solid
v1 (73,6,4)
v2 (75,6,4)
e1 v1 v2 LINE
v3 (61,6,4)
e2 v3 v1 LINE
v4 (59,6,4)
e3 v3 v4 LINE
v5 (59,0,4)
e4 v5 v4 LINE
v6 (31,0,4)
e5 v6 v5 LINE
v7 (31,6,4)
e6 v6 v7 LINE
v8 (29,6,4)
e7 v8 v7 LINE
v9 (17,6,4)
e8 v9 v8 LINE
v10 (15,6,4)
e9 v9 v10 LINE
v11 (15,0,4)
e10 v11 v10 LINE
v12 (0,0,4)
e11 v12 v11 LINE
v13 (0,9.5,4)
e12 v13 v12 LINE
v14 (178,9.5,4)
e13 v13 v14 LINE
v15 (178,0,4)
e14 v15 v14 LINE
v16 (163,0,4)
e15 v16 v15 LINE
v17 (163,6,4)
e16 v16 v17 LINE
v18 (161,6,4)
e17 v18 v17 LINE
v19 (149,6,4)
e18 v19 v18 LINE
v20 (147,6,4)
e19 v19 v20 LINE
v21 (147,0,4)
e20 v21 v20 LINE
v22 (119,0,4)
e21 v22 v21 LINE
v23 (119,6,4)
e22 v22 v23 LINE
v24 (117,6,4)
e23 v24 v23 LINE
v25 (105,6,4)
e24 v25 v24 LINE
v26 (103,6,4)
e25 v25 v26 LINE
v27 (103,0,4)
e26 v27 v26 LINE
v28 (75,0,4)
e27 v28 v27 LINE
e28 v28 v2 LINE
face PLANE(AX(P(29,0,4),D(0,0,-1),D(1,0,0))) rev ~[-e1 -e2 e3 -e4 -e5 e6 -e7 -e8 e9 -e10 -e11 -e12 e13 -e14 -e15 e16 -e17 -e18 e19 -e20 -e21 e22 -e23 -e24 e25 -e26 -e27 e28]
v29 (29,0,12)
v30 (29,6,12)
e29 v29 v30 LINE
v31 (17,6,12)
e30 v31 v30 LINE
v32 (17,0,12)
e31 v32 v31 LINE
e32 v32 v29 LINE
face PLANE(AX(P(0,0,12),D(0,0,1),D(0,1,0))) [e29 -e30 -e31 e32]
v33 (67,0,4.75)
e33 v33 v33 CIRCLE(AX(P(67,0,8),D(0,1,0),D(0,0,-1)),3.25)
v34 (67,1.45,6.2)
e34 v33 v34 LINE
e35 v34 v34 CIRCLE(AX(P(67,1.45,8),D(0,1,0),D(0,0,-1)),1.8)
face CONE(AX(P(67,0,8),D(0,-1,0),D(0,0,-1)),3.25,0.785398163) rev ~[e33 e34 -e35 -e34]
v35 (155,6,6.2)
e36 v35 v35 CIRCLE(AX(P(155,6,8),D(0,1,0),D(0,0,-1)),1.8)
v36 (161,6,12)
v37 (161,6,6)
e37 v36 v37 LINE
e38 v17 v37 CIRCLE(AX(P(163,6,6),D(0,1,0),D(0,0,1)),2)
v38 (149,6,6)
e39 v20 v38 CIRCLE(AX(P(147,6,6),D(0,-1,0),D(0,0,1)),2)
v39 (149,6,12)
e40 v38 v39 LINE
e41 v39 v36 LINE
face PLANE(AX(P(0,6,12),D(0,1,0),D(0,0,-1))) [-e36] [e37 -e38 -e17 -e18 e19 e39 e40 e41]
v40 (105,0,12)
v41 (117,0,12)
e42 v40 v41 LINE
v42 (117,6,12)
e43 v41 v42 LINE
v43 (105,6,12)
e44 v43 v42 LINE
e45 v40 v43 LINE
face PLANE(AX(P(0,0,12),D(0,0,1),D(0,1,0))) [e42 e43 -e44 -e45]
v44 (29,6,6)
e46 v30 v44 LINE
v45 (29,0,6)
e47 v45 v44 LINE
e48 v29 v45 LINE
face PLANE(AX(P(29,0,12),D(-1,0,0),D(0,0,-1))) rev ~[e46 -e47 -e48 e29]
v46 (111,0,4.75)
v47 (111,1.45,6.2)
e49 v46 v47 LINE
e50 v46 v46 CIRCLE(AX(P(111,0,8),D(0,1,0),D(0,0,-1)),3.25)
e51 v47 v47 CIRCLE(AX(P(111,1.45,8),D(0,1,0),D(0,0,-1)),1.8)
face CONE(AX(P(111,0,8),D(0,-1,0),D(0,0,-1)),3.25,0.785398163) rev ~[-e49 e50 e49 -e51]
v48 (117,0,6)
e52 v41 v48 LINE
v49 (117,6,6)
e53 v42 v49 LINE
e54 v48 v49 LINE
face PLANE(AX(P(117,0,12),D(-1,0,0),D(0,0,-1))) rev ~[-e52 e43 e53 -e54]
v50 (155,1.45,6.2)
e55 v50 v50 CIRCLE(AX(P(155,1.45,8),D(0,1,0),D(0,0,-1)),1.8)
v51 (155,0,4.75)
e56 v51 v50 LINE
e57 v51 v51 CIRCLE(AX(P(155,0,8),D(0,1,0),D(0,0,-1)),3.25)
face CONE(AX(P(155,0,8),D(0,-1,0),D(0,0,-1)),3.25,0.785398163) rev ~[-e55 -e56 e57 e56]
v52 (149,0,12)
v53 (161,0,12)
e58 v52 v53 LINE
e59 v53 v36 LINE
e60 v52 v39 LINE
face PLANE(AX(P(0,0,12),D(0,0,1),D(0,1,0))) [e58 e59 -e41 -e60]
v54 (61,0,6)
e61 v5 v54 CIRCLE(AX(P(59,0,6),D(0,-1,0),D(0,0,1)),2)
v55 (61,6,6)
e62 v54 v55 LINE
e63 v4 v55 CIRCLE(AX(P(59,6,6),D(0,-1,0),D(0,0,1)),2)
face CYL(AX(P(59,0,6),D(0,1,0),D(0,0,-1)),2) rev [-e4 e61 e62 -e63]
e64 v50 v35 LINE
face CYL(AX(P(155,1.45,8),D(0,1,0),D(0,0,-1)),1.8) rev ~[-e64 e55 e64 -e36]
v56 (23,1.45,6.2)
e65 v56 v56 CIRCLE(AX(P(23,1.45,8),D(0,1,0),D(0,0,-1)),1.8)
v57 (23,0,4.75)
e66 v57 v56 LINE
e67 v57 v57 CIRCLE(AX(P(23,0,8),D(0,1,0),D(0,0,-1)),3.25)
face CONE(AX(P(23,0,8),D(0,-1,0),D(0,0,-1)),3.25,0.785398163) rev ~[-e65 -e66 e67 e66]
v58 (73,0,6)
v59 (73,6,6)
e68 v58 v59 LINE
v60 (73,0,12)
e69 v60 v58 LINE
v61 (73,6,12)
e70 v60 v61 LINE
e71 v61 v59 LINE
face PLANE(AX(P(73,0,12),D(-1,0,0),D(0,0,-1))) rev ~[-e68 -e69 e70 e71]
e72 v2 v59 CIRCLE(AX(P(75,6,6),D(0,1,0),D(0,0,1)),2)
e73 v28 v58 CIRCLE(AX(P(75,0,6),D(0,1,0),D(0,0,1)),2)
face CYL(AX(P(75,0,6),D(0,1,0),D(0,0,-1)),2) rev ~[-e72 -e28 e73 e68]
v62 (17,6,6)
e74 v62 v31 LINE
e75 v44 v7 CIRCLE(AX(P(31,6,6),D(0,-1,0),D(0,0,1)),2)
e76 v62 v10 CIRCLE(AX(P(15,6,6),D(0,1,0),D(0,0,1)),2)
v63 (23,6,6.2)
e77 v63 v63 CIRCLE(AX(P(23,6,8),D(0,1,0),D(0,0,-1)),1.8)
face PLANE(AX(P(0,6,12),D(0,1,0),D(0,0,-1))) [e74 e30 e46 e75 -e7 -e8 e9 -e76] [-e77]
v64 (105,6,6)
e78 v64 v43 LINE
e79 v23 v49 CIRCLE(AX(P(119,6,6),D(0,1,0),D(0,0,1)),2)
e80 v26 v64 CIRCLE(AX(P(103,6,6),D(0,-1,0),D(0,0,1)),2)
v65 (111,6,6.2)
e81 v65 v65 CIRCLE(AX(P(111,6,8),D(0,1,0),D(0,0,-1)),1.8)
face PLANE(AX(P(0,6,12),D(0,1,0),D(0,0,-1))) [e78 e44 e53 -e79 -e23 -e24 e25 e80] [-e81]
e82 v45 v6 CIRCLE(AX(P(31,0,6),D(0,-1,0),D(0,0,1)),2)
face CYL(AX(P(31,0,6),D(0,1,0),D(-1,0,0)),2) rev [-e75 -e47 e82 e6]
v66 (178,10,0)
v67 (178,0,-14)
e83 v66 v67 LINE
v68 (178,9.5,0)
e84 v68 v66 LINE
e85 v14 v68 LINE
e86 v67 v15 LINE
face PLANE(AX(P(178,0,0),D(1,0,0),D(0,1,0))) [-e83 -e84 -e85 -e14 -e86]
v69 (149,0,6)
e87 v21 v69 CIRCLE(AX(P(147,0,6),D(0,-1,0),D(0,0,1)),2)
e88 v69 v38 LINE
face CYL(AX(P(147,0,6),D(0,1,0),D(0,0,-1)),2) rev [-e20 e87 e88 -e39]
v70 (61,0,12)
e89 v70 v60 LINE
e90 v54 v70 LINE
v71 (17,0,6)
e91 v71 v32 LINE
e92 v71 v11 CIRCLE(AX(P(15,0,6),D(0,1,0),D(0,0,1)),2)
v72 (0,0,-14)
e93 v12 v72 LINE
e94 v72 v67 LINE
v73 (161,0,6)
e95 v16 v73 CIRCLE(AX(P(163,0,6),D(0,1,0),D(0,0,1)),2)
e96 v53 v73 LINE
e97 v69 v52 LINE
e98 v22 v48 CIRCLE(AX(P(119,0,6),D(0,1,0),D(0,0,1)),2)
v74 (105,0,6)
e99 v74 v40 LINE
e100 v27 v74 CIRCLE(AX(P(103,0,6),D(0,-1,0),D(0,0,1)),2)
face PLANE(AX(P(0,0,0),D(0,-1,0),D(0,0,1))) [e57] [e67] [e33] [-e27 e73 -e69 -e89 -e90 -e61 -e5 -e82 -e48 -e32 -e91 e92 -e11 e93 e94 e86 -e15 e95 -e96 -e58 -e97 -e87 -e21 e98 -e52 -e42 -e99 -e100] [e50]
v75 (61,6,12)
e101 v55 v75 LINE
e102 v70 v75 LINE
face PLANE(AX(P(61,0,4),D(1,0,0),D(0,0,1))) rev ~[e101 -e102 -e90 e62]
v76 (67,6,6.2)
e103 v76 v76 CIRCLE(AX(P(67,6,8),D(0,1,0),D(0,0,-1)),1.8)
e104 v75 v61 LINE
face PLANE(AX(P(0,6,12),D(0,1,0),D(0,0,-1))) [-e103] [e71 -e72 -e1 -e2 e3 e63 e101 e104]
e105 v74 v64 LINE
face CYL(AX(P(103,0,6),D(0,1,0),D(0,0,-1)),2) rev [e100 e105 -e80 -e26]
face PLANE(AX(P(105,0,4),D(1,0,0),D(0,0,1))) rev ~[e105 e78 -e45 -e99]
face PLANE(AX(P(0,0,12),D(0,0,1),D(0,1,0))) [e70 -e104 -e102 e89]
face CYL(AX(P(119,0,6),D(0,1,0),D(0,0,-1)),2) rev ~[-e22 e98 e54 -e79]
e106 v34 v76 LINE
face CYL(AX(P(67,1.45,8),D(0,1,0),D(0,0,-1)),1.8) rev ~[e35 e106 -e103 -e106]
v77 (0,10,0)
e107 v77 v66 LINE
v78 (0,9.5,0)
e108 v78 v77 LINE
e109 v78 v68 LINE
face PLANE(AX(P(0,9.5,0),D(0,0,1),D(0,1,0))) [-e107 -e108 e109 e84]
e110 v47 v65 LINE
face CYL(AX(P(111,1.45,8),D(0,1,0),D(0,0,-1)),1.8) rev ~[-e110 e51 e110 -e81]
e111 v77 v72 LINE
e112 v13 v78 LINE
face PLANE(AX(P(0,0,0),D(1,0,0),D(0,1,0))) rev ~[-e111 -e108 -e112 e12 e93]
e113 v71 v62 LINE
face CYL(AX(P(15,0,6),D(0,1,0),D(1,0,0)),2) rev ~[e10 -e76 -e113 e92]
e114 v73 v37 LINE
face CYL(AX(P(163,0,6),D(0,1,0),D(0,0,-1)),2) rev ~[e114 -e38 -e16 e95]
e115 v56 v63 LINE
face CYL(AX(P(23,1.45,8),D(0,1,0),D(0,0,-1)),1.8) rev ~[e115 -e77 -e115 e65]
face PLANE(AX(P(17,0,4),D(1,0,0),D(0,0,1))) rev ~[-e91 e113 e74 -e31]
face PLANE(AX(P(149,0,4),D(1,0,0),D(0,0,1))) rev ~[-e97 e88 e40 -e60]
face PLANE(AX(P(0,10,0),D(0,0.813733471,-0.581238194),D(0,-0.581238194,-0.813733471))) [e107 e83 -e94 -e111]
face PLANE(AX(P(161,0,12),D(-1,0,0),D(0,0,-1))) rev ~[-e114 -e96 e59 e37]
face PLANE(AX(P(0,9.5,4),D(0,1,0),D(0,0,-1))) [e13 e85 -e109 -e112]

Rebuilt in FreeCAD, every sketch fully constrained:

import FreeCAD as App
import Part
import Sketcher
Q = App.Units.Quantity


def edges_at(feature, points):
    """Names of the edges that pass closest to the given points."""
    edges = feature.Shape.Edges
    near = lambda p: min(range(len(edges)), key=lambda i: edges[i].distToShape(Part.Vertex(*p))[0])
    return sorted({f"Edge{near(p) + 1}" for p in points})

doc = App.newDocument("Part")
body = doc.addObject("PartDesign::Body", "Body")

# Sketch on YZ plane
sketch1 = body.newObject("Sketcher::SketchObject", "Sketch")
sketch1.AttachmentSupport = (doc.getObject("YZ_Plane"), [""])
sketch1.MapMode = "FlatFace"
sketch1.addGeometry([
    Part.LineSegment(App.Vector(0, 12, 0), App.Vector(0, -14, 0)),  # 0
    Part.LineSegment(App.Vector(0, -14, 0), App.Vector(10, 0, 0)),  # 1
    Part.LineSegment(App.Vector(10, 0, 0), App.Vector(9.5, 0, 0)),  # 2
    Part.LineSegment(App.Vector(9.5, 0, 0), App.Vector(9.5, 4, 0)),  # 3
    Part.LineSegment(App.Vector(9.5, 4, 0), App.Vector(6, 4, 0)),  # 4
    Part.LineSegment(App.Vector(6, 4, 0), App.Vector(6, 12, 0)),  # 5
    Part.LineSegment(App.Vector(6, 12, 0), App.Vector(0, 12, 0)),  # 6
], False)
sketch1.addConstraint([
    Sketcher.Constraint("Coincident", 0, 2, 1, 1),
    Sketcher.Constraint("Coincident", 1, 2, 2, 1),
    Sketcher.Constraint("Coincident", 2, 2, 3, 1),
    Sketcher.Constraint("Coincident", 3, 2, 4, 1),
    Sketcher.Constraint("Coincident", 4, 2, 5, 1),
    Sketcher.Constraint("Coincident", 5, 2, 6, 1),
    Sketcher.Constraint("Coincident", 6, 2, 0, 1),
    Sketcher.Constraint("Vertical", 0),
    Sketcher.Constraint("Horizontal", 2),
    Sketcher.Constraint("Vertical", 3),
    Sketcher.Constraint("Horizontal", 4),
    Sketcher.Constraint("Vertical", 5),
    Sketcher.Constraint("Horizontal", 6),
    Sketcher.Constraint("PointOnObject", 0, 2, -2),
    Sketcher.Constraint("PointOnObject", 1, 2, -1),
    Sketcher.Constraint("DistanceX", 6, 2, 6, 1, Q("6 mm")),
    Sketcher.Constraint("DistanceY", 3, 1, 3, 2, Q("4 mm")),
    Sketcher.Constraint("DistanceX", 2, 2, 2, 1, Q("0.5 mm")),
    Sketcher.Constraint("DistanceX", 4, 2, 4, 1, Q("3.5 mm")),
    Sketcher.Constraint("DistanceY", 0, 2, -1, 1, Q("14 mm")),
    Sketcher.Constraint("DistanceY", -1, 1, 5, 2, Q("12 mm")),
])
pad1 = body.newObject("PartDesign::Pad", "Pad")
pad1.Profile = sketch1
pad1.Length = 178

# Sketch on XZ plane
sketch2 = body.newObject("Sketcher::SketchObject", "Sketch001")
sketch2.AttachmentSupport = (doc.getObject("XZ_Plane"), [""])
sketch2.MapMode = "FlatFace"
sketch2.addGeometry([
    Part.LineSegment(App.Vector(0, 12, 0), App.Vector(0, 4, 0)),  # 0
    Part.LineSegment(App.Vector(0, 4, 0), App.Vector(17, 4, 0)),  # 1
    Part.LineSegment(App.Vector(17, 4, 0), App.Vector(17, 12, 0)),  # 2
    Part.LineSegment(App.Vector(17, 12, 0), App.Vector(0, 12, 0)),  # 3
    Part.LineSegment(App.Vector(29, 12, 0), App.Vector(29, 4, 0)),  # 4
    Part.LineSegment(App.Vector(29, 4, 0), App.Vector(61, 4, 0)),  # 5
    Part.LineSegment(App.Vector(61, 4, 0), App.Vector(61, 12, 0)),  # 6
    Part.LineSegment(App.Vector(61, 12, 0), App.Vector(29, 12, 0)),  # 7
    Part.LineSegment(App.Vector(73, 12, 0), App.Vector(73, 4, 0)),  # 8
    Part.LineSegment(App.Vector(73, 4, 0), App.Vector(105, 4, 0)),  # 9
    Part.LineSegment(App.Vector(105, 4, 0), App.Vector(105, 12, 0)),  # 10
    Part.LineSegment(App.Vector(105, 12, 0), App.Vector(73, 12, 0)),  # 11
    Part.LineSegment(App.Vector(117, 12, 0), App.Vector(117, 4, 0)),  # 12
    Part.LineSegment(App.Vector(117, 4, 0), App.Vector(149, 4, 0)),  # 13
    Part.LineSegment(App.Vector(149, 4, 0), App.Vector(149, 12, 0)),  # 14
    Part.LineSegment(App.Vector(149, 12, 0), App.Vector(117, 12, 0)),  # 15
    Part.LineSegment(App.Vector(161, 12, 0), App.Vector(161, 4, 0)),  # 16
    Part.LineSegment(App.Vector(161, 4, 0), App.Vector(178, 4, 0)),  # 17
    Part.LineSegment(App.Vector(178, 4, 0), App.Vector(178, 12, 0)),  # 18
    Part.LineSegment(App.Vector(178, 12, 0), App.Vector(161, 12, 0)),  # 19
], False)
sketch2.addConstraint([
    Sketcher.Constraint("Coincident", 0, 2, 1, 1),
    Sketcher.Constraint("Coincident", 1, 2, 2, 1),
    Sketcher.Constraint("Coincident", 2, 2, 3, 1),
    Sketcher.Constraint("Coincident", 3, 2, 0, 1),
    Sketcher.Constraint("Coincident", 4, 2, 5, 1),
    Sketcher.Constraint("Coincident", 5, 2, 6, 1),
    Sketcher.Constraint("Coincident", 6, 2, 7, 1),
    Sketcher.Constraint("Coincident", 7, 2, 4, 1),
    Sketcher.Constraint("Coincident", 8, 2, 9, 1),
    Sketcher.Constraint("Coincident", 9, 2, 10, 1),
    Sketcher.Constraint("Coincident", 10, 2, 11, 1),
    Sketcher.Constraint("Coincident", 11, 2, 8, 1),
    Sketcher.Constraint("Coincident", 12, 2, 13, 1),
    Sketcher.Constraint("Coincident", 13, 2, 14, 1),
    Sketcher.Constraint("Coincident", 14, 2, 15, 1),
    Sketcher.Constraint("Coincident", 15, 2, 12, 1),
    Sketcher.Constraint("Coincident", 16, 2, 17, 1),
    Sketcher.Constraint("Coincident", 17, 2, 18, 1),
    Sketcher.Constraint("Coincident", 18, 2, 19, 1),
    Sketcher.Constraint("Coincident", 19, 2, 16, 1),
    Sketcher.Constraint("Vertical", 0),
    Sketcher.Constraint("Horizontal", 1),
    Sketcher.Constraint("Vertical", 2),
    Sketcher.Constraint("Horizontal", 3),
    Sketcher.Constraint("Vertical", 4),
    Sketcher.Constraint("Horizontal", 5),
    Sketcher.Constraint("Vertical", 6),
    Sketcher.Constraint("Horizontal", 7),
    Sketcher.Constraint("Vertical", 8),
    Sketcher.Constraint("Horizontal", 9),
    Sketcher.Constraint("Vertical", 10),
    Sketcher.Constraint("Horizontal", 11),
    Sketcher.Constraint("Vertical", 12),
    Sketcher.Constraint("Horizontal", 13),
    Sketcher.Constraint("Vertical", 14),
    Sketcher.Constraint("Horizontal", 15),
    Sketcher.Constraint("Vertical", 16),
    Sketcher.Constraint("Horizontal", 17),
    Sketcher.Constraint("Vertical", 18),
    Sketcher.Constraint("Horizontal", 19),
    Sketcher.Constraint("PointOnObject", 0, 2, -2),
    Sketcher.Constraint("Horizontal", 1, 2, 4, 2),
    Sketcher.Constraint("Horizontal", 3, 2, 6, 2),
    Sketcher.Constraint("Horizontal", 5, 2, 8, 2),
    Sketcher.Constraint("Horizontal", 7, 2, 10, 2),
    Sketcher.Constraint("Horizontal", 9, 2, 12, 2),
    Sketcher.Constraint("Horizontal", 11, 2, 14, 2),
    Sketcher.Constraint("Horizontal", 13, 2, 16, 2),
    Sketcher.Constraint("Horizontal", 15, 2, 18, 2),
    Sketcher.Constraint("Equal", 7, 9),
    Sketcher.Constraint("Equal", 11, 13),
    Sketcher.Constraint("Equal", 3, 17),
    Sketcher.Constraint("DistanceX", 1, 1, 1, 2, Q("17 mm")),
    Sketcher.Constraint("DistanceX", 5, 1, 5, 2, Q("32 mm")),
    Sketcher.Constraint("DistanceY", -1, 1, 2, 2, Q("12 mm")),
    Sketcher.Constraint("DistanceX", 1, 2, 4, 2, Q("12 mm")),
    Sketcher.Constraint("DistanceX", 5, 2, 8, 2, Q("12 mm")),
    Sketcher.Constraint("DistanceX", 9, 2, 12, 2, Q("12 mm")),
    Sketcher.Constraint("DistanceX", 13, 2, 16, 2, Q("12 mm")),
    Sketcher.Constraint("DistanceY", 0, 2, 0, 1, Q("8 mm")),
])
pocket1 = body.newObject("PartDesign::Pocket", "Pocket")
pocket1.Profile = sketch2
pocket1.Type = "UpToFirst"

# Sketch on XZ plane
sketch3 = body.newObject("Sketcher::SketchObject", "Sketch002")
sketch3.AttachmentSupport = (doc.getObject("XZ_Plane"), [""])
sketch3.MapMode = "FlatFace"
sketch3.addGeometry([
    Part.Circle(App.Vector(23, 8, 0), App.Vector(0, 0, 1), 1.8),
    Part.Circle(App.Vector(67, 8, 0), App.Vector(0, 0, 1), 1.8),
    Part.Circle(App.Vector(111, 8, 0), App.Vector(0, 0, 1), 1.8),
    Part.Circle(App.Vector(155, 8, 0), App.Vector(0, 0, 1), 1.8),
], False)
sketch3.addConstraint([
    Sketcher.Constraint("Equal", 0, 1),
    Sketcher.Constraint("Equal", 1, 2),
    Sketcher.Constraint("Equal", 2, 3),
    Sketcher.Constraint("Horizontal", 0, 3, 1, 3),
    Sketcher.Constraint("Horizontal", 1, 3, 2, 3),
    Sketcher.Constraint("Horizontal", 2, 3, 3, 3),
    Sketcher.Constraint("Diameter", 0, Q("3.6 mm")),
    Sketcher.Constraint("DistanceX", -1, 1, 0, 3, Q("23 mm")),
    Sketcher.Constraint("DistanceY", -1, 1, 0, 3, Q("8 mm")),
    Sketcher.Constraint("DistanceX", -1, 1, 1, 3, Q("67 mm")),
    Sketcher.Constraint("DistanceX", -1, 1, 2, 3, Q("111 mm")),
    Sketcher.Constraint("DistanceX", -1, 1, 3, 3, Q("155 mm")),
])
doc.recompute()
hole = body.newObject("PartDesign::Hole", "Hole")
hole.Profile = sketch3
hole.ThreadType = "None"
hole.Diameter = 3.6
hole.DepthType = "ThroughAll"
hole.HoleCutType = "Countersink"
hole.HoleCutDiameter = 6.5
hole.HoleCutCountersinkAngle = 90
doc.recompute()

fillet = body.newObject("PartDesign::Fillet", "Fillet")
fillet.Base = (hole, edges_at(hole, [
    (17, 3, 4),
    (29, 3, 4),
    (61, 3, 4),
    (73, 3, 4),
    (105, 3, 4),
    (117, 3, 4),
    (149, 3, 4),
    (161, 3, 4),
]))
fillet.Radius = 2

doc.recompute()
